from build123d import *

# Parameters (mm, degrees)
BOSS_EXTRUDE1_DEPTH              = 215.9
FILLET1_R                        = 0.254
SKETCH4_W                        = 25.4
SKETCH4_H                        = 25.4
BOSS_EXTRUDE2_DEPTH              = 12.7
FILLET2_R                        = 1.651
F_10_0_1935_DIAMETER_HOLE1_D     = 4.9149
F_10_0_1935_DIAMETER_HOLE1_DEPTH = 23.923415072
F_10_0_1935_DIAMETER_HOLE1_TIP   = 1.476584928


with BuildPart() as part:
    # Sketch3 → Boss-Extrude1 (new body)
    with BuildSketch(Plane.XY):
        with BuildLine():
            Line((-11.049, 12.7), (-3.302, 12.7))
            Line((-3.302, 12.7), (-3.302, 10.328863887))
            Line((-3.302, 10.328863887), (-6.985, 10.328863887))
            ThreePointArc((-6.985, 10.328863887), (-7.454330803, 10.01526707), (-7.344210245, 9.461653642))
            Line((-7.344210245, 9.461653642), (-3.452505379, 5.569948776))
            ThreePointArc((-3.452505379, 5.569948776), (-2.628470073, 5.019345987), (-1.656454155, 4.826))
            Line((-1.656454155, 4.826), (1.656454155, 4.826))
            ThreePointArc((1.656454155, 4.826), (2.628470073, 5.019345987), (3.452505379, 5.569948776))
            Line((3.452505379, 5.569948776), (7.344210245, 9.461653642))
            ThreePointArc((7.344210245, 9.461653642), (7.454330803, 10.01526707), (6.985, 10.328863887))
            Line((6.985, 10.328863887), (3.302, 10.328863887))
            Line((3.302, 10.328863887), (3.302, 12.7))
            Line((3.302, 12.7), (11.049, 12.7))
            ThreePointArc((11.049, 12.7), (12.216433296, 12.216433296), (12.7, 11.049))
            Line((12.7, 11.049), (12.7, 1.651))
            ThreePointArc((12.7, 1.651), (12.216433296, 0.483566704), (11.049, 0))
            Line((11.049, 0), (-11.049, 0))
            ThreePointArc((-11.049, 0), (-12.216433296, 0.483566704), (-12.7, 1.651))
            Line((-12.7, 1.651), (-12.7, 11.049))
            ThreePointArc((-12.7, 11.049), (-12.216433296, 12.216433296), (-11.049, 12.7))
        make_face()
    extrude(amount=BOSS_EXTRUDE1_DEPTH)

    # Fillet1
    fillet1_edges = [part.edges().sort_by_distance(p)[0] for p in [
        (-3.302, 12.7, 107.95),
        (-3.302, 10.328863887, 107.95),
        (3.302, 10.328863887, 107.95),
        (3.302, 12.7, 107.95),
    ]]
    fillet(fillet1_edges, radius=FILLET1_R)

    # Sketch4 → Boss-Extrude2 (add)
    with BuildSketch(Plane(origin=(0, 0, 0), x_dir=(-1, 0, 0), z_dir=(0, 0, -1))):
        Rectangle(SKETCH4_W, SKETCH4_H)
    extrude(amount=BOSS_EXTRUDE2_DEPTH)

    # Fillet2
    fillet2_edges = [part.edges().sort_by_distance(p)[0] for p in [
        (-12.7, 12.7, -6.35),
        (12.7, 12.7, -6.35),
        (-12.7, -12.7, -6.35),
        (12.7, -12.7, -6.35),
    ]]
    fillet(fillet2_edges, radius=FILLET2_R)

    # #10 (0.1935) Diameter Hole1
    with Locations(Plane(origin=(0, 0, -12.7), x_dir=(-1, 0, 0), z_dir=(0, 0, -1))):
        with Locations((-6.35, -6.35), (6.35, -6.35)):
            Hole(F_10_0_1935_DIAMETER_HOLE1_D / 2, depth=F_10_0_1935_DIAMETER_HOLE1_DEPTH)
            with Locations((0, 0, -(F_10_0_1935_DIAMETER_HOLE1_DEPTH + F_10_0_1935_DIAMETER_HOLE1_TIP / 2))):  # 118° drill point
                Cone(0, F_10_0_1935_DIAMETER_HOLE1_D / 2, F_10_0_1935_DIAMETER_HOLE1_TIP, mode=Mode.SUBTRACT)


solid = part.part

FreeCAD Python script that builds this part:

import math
import FreeCAD as App
import Part
import Sketcher
Q = App.Units.Quantity


def edges_at(feature, points):
    """Names of the edges that pass closest to the given points."""
    edges = feature.Shape.Edges
    near = lambda p: min(range(len(edges)), key=lambda i: edges[i].distToShape(Part.Vertex(*p))[0])
    return sorted({f"Edge{near(p) + 1}" for p in points})


def add_polygon(sketch, points):
    """Adds a closed chain of lines whose ends are joined by coincident constraints."""
    first, n = sketch.GeometryCount, len(points)
    for a, b in zip(points, points[1:] + points[:1]):
        sketch.addGeometry(Part.LineSegment(App.Vector(*a, 0), App.Vector(*b, 0)), False)
    for i in range(n):
        sketch.addConstraint(Sketcher.Constraint("Coincident", first + i, 2, first + (i + 1) % n, 1))

doc = App.newDocument("Part")
body = doc.addObject("PartDesign::Body", "Body")

sketch1 = doc.addObject("Sketcher::SketchObject", "Sketch")
body.addObject(sketch1)
sketch1.AttachmentSupport = (doc.XY_Plane, [""])
sketch1.MapMode = "FlatFace"
sketch1.addGeometry([
    Part.LineSegment(App.Vector(-3.3, 12.7, 0), App.Vector(-11, 12.7, 0)),
    Part.ArcOfCircle(Part.Circle(App.Vector(-11, 11, 0), App.Vector(0, 0, 1), 1.7), math.radians(90), math.radians(180)),
    Part.LineSegment(App.Vector(-12.7, 11, 0), App.Vector(-12.7, 1.7, 0)),
    Part.ArcOfCircle(Part.Circle(App.Vector(-11, 1.7, 0), App.Vector(0, 0, 1), 1.7), math.radians(180), math.radians(270)),
    Part.LineSegment(App.Vector(-11, 0, 0), App.Vector(11, 0, 0)),
    Part.ArcOfCircle(Part.Circle(App.Vector(11, 1.7, 0), App.Vector(0, 0, 1), 1.7), math.radians(-90), math.radians(0)),
    Part.LineSegment(App.Vector(12.7, 1.7, 0), App.Vector(12.7, 11, 0)),
    Part.ArcOfCircle(Part.Circle(App.Vector(11, 11, 0), App.Vector(0, 0, 1), 1.7), math.radians(0), math.radians(90)),
    Part.LineSegment(App.Vector(11, 12.7, 0), App.Vector(3.3, 12.7, 0)),
    Part.LineSegment(App.Vector(3.3, 12.7, 0), App.Vector(3.3, 10.3, 0)),
    Part.LineSegment(App.Vector(3.3, 10.3, 0), App.Vector(7, 10.3, 0)),
    Part.ArcOfCircle(Part.Circle(App.Vector(7, 9.8, 0), App.Vector(0, 0, 1), 0.5), math.radians(-45), math.radians(90)),
    Part.LineSegment(App.Vector(7.3, 9.5, 0), App.Vector(3.5, 5.6, 0)),
    Part.ArcOfCircle(Part.Circle(App.Vector(1.7, 7.4, 0), App.Vector(0, 0, 1), 2.5), math.radians(-90), math.radians(-45)),
    Part.LineSegment(App.Vector(1.7, 4.8, 0), App.Vector(-1.7, 4.8, 0)),
    Part.ArcOfCircle(Part.Circle(App.Vector(-1.7, 7.4, 0), App.Vector(0, 0, 1), 2.5), math.radians(-135), math.radians(-90)),
    Part.LineSegment(App.Vector(-3.5, 5.6, 0), App.Vector(-7.3, 9.5, 0)),
    Part.ArcOfCircle(Part.Circle(App.Vector(-7, 9.8, 0), App.Vector(0, 0, 1), 0.5), math.radians(90), math.radians(225)),
    Part.LineSegment(App.Vector(-7, 10.3, 0), App.Vector(-3.3, 10.3, 0)),
    Part.LineSegment(App.Vector(-3.3, 10.3, 0), App.Vector(-3.3, 12.7, 0)),
], False)
sketch1.addConstraint([
    Sketcher.Constraint("Tangent", 0, 2, 1, 1),
    Sketcher.Constraint("Tangent", 1, 2, 2, 1),
    Sketcher.Constraint("Tangent", 2, 2, 3, 1),
    Sketcher.Constraint("Tangent", 3, 2, 4, 1),
    Sketcher.Constraint("Tangent", 4, 2, 5, 1),
    Sketcher.Constraint("Tangent", 5, 2, 6, 1),
    Sketcher.Constraint("Tangent", 6, 2, 7, 1),
    Sketcher.Constraint("Tangent", 7, 2, 8, 1),
    Sketcher.Constraint("Coincident", 8, 2, 9, 1),
    Sketcher.Constraint("Coincident", 9, 2, 10, 1),
    Sketcher.Constraint("Tangent", 10, 2, 11, 2),
    Sketcher.Constraint("Tangent", 11, 1, 12, 1),
    Sketcher.Constraint("Tangent", 12, 2, 13, 2),
    Sketcher.Constraint("Tangent", 13, 1, 14, 1),
    Sketcher.Constraint("Tangent", 14, 2, 15, 2),
    Sketcher.Constraint("Tangent", 15, 1, 16, 1),
    Sketcher.Constraint("Tangent", 16, 2, 17, 2),
    Sketcher.Constraint("Tangent", 17, 1, 18, 1),
    Sketcher.Constraint("Coincident", 18, 2, 19, 1),
    Sketcher.Constraint("Coincident", 19, 2, 0, 1),
    Sketcher.Constraint("Horizontal", 0),
    Sketcher.Constraint("Vertical", 2),
    Sketcher.Constraint("Horizontal", 4),
    Sketcher.Constraint("Vertical", 6),
    Sketcher.Constraint("Horizontal", 8),
    Sketcher.Constraint("Vertical", 9),
    Sketcher.Constraint("Horizontal", 10),
    Sketcher.Constraint("Horizontal", 14),
    Sketcher.Constraint("Horizontal", 18),
    Sketcher.Constraint("Vertical", 19),
    Sketcher.Constraint("Equal", 1, 3),
    Sketcher.Constraint("Equal", 3, 5),
    Sketcher.Constraint("Equal", 5, 7),
    Sketcher.Constraint("Equal", 13, 15),
    Sketcher.Constraint("Equal", 11, 17),
    Sketcher.Constraint("Symmetric", 3, 2, 4, 2, -1, 1),
    Sketcher.Constraint("Symmetric", 11, 3, 17, 3, -2),
    Sketcher.Constraint("Symmetric", 8, 2, 19, 2, -2),
    Sketcher.Constraint("Perpendicular", 12, 16),
    Sketcher.Constraint("Horizontal", 12, 2, 15, 1),
    Sketcher.Constraint("Radius", 13, Q("0.1 in")),
    Sketcher.Constraint("Radius", 11, Q("0.02 in")),
    Sketcher.Constraint("Radius", 1, Q("0.065 in")),
    Sketcher.Constraint("DistanceX", 4, 1, 4, 2, Q("0.87 in")),
    Sketcher.Constraint("DistanceY", 2, 2, 2, 1, Q("0.37 in")),
    Sketcher.Constraint("DistanceX", 0, 2, 0, 1, Q("0.305 in")),
    Sketcher.Constraint("DistanceX", 10, 1, 10, 2, Q("0.145 in")),
    Sketcher.Constraint("DistanceY", -1, 1, 13, 3, Q("0.29 in")),
    Sketcher.Constraint("Distance", 12, 5.503702),
])
pad1 = doc.addObject("PartDesign::Pad", "Pad")
body.addObject(pad1)
pad1.Profile = sketch1
pad1.Length = Q("8.5 in")
doc.recompute()

fillet = doc.addObject("PartDesign::Fillet", "Fillet")
body.addObject(fillet)
fillet.Base = (pad1, edges_at(pad1, [
    (-3.302, 12.7, 107.95),
    (-3.302, 10.329, 107.95),
    (3.302, 10.329, 107.95),
    (3.302, 12.7, 107.95),
]))
fillet.Radius = Q("0.01 in")

sketch2 = doc.addObject("Sketcher::SketchObject", "Sketch001")
body.addObject(sketch2)
sketch2.AttachmentSupport = (doc.XY_Plane, [""])
sketch2.MapMode = "FlatFace"
add_polygon(sketch2, [(13, 13), (13, -13), (-13, -13), (-13, 13)])
sketch2.addConstraint([
    Sketcher.Constraint("Vertical", 0),
    Sketcher.Constraint("Horizontal", 1),
    Sketcher.Constraint("Vertical", 2),
    Sketcher.Constraint("Horizontal", 3),
    Sketcher.Constraint("Symmetric", 0, 2, 2, 2, -1, 1),
    Sketcher.Constraint("Equal", 3, 0),
    Sketcher.Constraint("DistanceX", 1, 2, 1, 1, Q("1 in")),
])
pad2 = doc.addObject("PartDesign::Pad", "Pad001")
body.addObject(pad2)
pad2.Profile = sketch2
pad2.Length = Q("0.5 in")
pad2.Reversed = True
doc.recompute()

fillet2 = doc.addObject("PartDesign::Fillet", "Fillet001")
body.addObject(fillet2)
fillet2.Base = (pad2, edges_at(pad2, [
    (-12.7, 12.7, -6.35),
    (12.7, 12.7, -6.35),
    (-12.7, -12.7, -6.35),
    (12.7, -12.7, -6.35),
]))
fillet2.Radius = Q("0.065 in")

sketch3 = doc.addObject("Sketcher::SketchObject", "Sketch002")
body.addObject(sketch3)
sketch3.AttachmentSupport = (doc.XY_Plane, [""])
sketch3.MapMode = "FlatFace"
sketch3.AttachmentOffset = App.Placement(App.Vector(0, 0, -0.5 * 25.4), App.Rotation())
sketch3.addGeometry([
    Part.Circle(App.Vector(6.3, -6.3, 0), App.Vector(0, 0, 1), 2.5),
    Part.Circle(App.Vector(-6.3, -6.3, 0), App.Vector(0, 0, 1), 2.5),
], False)
sketch3.addConstraint([
    Sketcher.Constraint("Equal", 0, 1),
    Sketcher.Constraint("Symmetric", 0, 3, 1, 3, -2),
    Sketcher.Constraint("Diameter", 0, Q("0.1935 in")),
    Sketcher.Constraint("DistanceX", 1, 3, 0, 3, Q("0.5 in")),
    Sketcher.Constraint("DistanceY", 0, 3, -1, 1, Q("0.25 in")),
])
doc.recompute()
hole = doc.addObject("PartDesign::Hole", "Hole")
body.addObject(hole)
hole.Profile = sketch3
hole.ThreadType = "None"
hole.Diameter = Q("0.1935 in")
hole.DepthType = "Dimension"
hole.Depth = 23.923415
hole.DrillPoint = "Angled"
hole.DrillPointAngle = 118
hole.Reversed = True

doc.recompute()
